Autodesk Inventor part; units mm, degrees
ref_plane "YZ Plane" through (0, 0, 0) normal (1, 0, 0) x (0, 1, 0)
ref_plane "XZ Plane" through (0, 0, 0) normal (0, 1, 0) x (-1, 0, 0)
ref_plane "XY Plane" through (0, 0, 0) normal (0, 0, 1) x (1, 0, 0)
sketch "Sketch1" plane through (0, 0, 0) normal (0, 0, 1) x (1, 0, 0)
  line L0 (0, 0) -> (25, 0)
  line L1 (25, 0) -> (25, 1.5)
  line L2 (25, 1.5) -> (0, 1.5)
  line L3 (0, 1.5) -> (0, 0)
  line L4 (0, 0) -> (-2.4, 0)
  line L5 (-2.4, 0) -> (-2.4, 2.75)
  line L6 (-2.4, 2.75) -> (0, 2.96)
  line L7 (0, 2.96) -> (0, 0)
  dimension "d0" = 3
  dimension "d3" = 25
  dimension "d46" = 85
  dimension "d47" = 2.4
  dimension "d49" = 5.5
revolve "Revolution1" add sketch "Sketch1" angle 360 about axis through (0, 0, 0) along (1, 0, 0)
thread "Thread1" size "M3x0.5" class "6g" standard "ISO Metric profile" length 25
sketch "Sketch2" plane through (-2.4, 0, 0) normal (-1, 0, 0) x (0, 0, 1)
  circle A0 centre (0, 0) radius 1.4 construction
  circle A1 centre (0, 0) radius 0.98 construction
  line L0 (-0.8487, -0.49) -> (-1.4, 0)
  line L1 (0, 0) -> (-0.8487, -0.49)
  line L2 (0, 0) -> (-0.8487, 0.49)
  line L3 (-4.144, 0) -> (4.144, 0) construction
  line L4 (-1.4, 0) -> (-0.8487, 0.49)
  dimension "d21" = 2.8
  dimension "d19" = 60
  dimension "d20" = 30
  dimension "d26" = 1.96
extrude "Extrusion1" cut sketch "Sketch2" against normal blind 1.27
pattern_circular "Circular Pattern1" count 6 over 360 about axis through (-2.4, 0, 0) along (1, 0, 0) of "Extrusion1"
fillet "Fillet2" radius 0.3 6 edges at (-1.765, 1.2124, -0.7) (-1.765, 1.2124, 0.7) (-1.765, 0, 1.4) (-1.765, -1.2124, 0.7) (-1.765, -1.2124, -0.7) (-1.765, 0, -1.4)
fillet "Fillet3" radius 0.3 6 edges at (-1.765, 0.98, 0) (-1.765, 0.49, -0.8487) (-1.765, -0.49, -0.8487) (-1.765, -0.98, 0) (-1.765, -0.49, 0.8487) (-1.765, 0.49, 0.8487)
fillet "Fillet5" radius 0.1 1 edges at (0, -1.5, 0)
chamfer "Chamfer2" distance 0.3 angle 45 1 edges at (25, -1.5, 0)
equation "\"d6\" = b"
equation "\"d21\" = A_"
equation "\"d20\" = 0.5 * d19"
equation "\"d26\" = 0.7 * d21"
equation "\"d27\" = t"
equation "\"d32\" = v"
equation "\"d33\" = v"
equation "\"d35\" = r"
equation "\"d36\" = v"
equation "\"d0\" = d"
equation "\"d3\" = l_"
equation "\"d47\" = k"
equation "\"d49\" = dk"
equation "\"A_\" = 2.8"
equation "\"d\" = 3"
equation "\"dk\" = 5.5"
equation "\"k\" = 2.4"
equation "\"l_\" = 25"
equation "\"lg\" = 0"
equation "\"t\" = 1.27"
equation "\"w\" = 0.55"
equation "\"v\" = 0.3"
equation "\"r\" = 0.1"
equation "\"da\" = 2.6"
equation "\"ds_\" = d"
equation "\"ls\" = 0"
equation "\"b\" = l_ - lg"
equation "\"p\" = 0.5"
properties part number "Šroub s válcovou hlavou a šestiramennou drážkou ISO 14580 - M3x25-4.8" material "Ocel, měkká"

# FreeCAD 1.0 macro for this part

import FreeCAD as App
import Part
import Sketcher
from FreeCAD import Vector
Q = App.Units.Quantity


def edges_at(feature, points):
    """Names of the edges that pass closest to the given points."""
    edges = feature.Shape.Edges
    near = lambda p: min(range(len(edges)), key=lambda i: edges[i].distToShape(Part.Vertex(*p))[0])
    return sorted({f"Edge{near(p) + 1}" for p in points})


def add_polygon(sketch, points):
    """Adds a closed chain of lines whose ends are joined by coincident constraints."""
    first, n = sketch.GeometryCount, len(points)
    for a, b in zip(points, points[1:] + points[:1]):
        sketch.addGeometry(Part.LineSegment(App.Vector(*a, 0), App.Vector(*b, 0)), False)
    for i in range(n):
        sketch.addConstraint(Sketcher.Constraint("Coincident", first + i, 2, first + (i + 1) % n, 1))

doc = App.newDocument("Part")
body = doc.addObject("PartDesign::Body", "Body")

# Sketch on XY plane
sketch1 = body.newObject("Sketcher::SketchObject", "Sketch")
sketch1.AttachmentSupport = (doc.getObject("XY_Plane"), [""])
sketch1.MapMode = "FlatFace"
add_polygon(sketch1, [(25, 1.5), (0, 1.5), (0, 2.96), (-2.4, 2.75), (-2.4, 0), (25, 0)])  # lines 0-5
sketch1.addConstraint(Sketcher.Constraint("Horizontal", 0))
sketch1.addConstraint(Sketcher.Constraint("Vertical", 1))
sketch1.addConstraint(Sketcher.Constraint("Vertical", 3))
sketch1.addConstraint(Sketcher.Constraint("Horizontal", 4))
sketch1.addConstraint(Sketcher.Constraint("Vertical", 5))
sketch1.addConstraint(Sketcher.Constraint("PointOnObject", 0, 2, -2))
sketch1.addConstraint(Sketcher.Constraint("PointOnObject", 3, 2, -1))
sketch1.addConstraint(Sketcher.Constraint("DistanceX", 0, 2, 0, 1, 25.0))
sketch1.addConstraint(Sketcher.Constraint("DistanceX", 2, 2, -1, 1, 2.4))
sketch1.addConstraint(Sketcher.Constraint("Angle", 2, Q("-174.9994 deg")))
sketch1.addConstraint(Sketcher.Constraint("DistanceY", 5, 1, 5, 2, 1.5))
sketch1.addConstraint(Sketcher.Constraint("DistanceY", 1, 1, 1, 2, 1.46))
revolution = body.newObject("PartDesign::Revolution", "Revolution")
revolution.Profile = sketch1
revolution.ReferenceAxis = (sketch1, ["H_Axis"])
revolution.Angle = 360

# Sketch on YZ plane
sketch2 = body.newObject("Sketcher::SketchObject", "Sketch001")
sketch2.AttachmentSupport = (doc.getObject("YZ_Plane"), [""])
sketch2.MapMode = "FlatFace"
sketch2.AttachmentOffset = App.Placement(Vector(0, 0, -2.4), App.Rotation())
add_polygon(sketch2, [(0, -1.4), (-0.49, -0.8487), (0, 0), (0.49, -0.8487)])  # lines 0-3
sketch2.addConstraint(Sketcher.Constraint("Coincident", 1, 2, -1, 1))
sketch2.addConstraint(Sketcher.Constraint("Symmetric", 0, 2, 2, 2, -2))
sketch2.addConstraint(Sketcher.Constraint("PointOnObject", 3, 2, -2))
sketch2.addConstraint(Sketcher.Constraint("Angle", 1, Q("59.9999 deg")))
sketch2.addConstraint(Sketcher.Constraint("DistanceY", 3, 2, -1, 1, 1.4))
sketch2.addConstraint(Sketcher.Constraint("Angle", 0, Q("131.631 deg")))
pocket1 = body.newObject("PartDesign::Pocket", "Pocket")
pocket1.Profile = sketch2
pocket1.Length = 1.27
pocket1.Reversed = True
doc.recompute()

polarpattern = body.newObject("PartDesign::PolarPattern", "PolarPattern")
polarpattern.Originals = [pocket1]
polarpattern.Axis = (doc.getObject("X_Axis"), [""])
polarpattern.Angle = 360
polarpattern.Occurrences = 6
body.Tip = polarpattern
doc.recompute()

fillet = body.newObject("PartDesign::Fillet", "Fillet")
fillet.Base = (polarpattern, edges_at(polarpattern, [
    (-1.765, 1.212, -0.7),
    (-1.765, 1.212, 0.7),
    (-1.765, 0, 1.4),
    (-1.765, -1.212, 0.7),
    (-1.765, -1.212, -0.7),
    (-1.765, 0, -1.4),
]))
fillet.Radius = 0.3
doc.recompute()

fillet2 = body.newObject("PartDesign::Fillet", "Fillet001")
fillet2.Base = (fillet, edges_at(fillet, [
    (-1.765, 0.98, 0),
    (-1.765, 0.49, -0.849),
    (-1.765, -0.49, -0.849),
    (-1.765, -0.98, 0),
    (-1.765, -0.49, 0.849),
    (-1.765, 0.49, 0.849),
]))
fillet2.Radius = 0.3
doc.recompute()

fillet3 = body.newObject("PartDesign::Fillet", "Fillet002")
fillet3.Base = (fillet2, edges_at(fillet2, [(0, -1.5, 0)]))
fillet3.Radius = 0.1
doc.recompute()

chamfer = body.newObject("PartDesign::Chamfer", "Chamfer")
chamfer.Base = (fillet3, edges_at(fillet3, [(25, -1.5, 0)]))
chamfer.Size = 0.3

doc.recompute()
